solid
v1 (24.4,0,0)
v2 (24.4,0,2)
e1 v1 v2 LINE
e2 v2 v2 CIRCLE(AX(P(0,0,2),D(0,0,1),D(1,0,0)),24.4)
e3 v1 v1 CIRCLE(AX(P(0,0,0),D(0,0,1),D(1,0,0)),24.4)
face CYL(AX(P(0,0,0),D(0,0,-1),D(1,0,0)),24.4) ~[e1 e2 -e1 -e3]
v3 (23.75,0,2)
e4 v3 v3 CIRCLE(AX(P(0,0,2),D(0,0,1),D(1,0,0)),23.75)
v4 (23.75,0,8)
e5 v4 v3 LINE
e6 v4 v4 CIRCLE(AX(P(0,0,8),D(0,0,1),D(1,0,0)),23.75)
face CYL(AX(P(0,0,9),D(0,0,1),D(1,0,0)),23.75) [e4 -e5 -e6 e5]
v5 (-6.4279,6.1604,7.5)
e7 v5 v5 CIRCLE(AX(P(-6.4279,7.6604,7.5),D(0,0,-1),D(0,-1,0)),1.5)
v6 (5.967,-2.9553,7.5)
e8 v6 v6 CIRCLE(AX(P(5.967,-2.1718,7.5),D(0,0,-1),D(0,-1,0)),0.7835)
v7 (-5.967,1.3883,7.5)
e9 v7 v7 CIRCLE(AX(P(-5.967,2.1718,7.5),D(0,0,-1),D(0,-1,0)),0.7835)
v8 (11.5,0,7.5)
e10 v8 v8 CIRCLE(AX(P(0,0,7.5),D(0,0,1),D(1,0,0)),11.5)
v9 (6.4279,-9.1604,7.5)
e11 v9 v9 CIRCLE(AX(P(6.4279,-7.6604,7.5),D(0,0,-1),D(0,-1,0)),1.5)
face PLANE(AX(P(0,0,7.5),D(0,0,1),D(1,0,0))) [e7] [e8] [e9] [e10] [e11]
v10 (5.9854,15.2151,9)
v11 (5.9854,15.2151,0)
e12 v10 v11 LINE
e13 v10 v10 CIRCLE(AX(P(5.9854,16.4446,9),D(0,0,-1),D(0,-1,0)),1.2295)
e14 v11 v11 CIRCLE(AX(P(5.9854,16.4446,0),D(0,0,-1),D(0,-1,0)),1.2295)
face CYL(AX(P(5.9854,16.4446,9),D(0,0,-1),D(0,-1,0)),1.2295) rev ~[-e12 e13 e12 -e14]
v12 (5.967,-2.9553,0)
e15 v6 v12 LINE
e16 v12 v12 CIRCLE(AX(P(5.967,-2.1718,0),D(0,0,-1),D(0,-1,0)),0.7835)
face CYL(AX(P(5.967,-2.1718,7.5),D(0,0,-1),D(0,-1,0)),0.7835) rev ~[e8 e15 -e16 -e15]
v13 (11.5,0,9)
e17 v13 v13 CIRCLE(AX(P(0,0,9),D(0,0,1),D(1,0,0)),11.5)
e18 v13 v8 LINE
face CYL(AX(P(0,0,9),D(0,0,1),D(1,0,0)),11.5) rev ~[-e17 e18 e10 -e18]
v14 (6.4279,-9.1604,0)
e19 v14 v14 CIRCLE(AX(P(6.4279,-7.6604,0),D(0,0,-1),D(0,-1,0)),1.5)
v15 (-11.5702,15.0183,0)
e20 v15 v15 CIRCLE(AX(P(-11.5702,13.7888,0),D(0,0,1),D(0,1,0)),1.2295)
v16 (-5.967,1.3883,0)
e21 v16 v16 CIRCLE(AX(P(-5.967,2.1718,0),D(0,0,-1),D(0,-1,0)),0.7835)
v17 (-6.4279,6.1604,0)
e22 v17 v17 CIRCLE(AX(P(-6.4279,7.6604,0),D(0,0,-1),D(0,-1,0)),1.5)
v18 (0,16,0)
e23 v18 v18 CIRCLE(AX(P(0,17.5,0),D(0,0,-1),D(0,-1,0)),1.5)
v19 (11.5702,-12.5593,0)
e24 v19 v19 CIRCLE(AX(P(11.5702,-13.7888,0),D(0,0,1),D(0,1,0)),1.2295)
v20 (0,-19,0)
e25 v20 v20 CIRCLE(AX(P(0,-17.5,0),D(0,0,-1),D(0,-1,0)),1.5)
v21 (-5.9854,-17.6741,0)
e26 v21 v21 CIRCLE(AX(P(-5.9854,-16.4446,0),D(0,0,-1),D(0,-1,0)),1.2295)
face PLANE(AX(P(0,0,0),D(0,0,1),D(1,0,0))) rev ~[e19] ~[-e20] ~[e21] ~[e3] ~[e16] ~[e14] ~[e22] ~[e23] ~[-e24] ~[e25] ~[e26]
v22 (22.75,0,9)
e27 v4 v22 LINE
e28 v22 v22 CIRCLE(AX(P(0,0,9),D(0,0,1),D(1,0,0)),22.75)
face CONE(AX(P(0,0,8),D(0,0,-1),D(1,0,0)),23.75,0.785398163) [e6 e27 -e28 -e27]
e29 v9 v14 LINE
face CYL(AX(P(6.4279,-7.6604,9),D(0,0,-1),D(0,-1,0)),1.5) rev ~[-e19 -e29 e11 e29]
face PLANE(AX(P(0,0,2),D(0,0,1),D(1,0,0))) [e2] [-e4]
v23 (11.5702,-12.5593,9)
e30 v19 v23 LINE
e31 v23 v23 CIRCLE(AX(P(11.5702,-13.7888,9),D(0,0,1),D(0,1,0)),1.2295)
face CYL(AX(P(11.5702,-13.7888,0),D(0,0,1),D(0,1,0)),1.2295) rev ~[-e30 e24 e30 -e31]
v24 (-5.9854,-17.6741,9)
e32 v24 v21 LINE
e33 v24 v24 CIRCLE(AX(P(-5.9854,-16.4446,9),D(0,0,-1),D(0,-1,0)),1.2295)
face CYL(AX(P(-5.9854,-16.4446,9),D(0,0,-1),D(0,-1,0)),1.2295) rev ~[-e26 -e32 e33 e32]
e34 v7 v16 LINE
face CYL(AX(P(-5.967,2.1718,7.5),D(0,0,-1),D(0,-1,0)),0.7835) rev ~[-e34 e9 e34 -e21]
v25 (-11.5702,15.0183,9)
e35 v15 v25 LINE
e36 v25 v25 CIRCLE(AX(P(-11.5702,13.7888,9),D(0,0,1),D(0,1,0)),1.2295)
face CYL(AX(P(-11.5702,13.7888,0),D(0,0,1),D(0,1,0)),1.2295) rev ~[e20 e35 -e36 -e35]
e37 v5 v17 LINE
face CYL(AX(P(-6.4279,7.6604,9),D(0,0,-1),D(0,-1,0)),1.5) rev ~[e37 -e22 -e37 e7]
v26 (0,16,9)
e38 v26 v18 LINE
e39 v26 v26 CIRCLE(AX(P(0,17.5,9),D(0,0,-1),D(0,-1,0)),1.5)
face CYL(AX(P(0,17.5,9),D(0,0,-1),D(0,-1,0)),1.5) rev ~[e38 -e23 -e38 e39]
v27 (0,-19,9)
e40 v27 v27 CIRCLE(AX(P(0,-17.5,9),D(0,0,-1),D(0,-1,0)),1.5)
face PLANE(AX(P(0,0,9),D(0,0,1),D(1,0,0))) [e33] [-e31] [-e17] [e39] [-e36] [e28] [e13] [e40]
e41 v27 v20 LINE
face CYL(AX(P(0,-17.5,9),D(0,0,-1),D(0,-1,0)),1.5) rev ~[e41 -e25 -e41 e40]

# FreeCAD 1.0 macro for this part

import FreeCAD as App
import Part
import Sketcher

V = App.Vector
Q = App.Units.Quantity


def edges_at(feature, points):
    """Names of the edges that pass closest to the given points."""
    edges = feature.Shape.Edges
    near = lambda p: min(range(len(edges)), key=lambda i: edges[i].distToShape(Part.Vertex(*p))[0])
    return sorted({f"Edge{near(p) + 1}" for p in points})

doc = App.newDocument("Part")
params = doc.addObject("Spreadsheet::Sheet", "Params")
for row, (alias, value) in enumerate([
    ("sketch1_diameter", "48.8 mm"),
    ("pad1_length", "9 mm"),
    ("sketch2_diameter", "23 mm"),
    ("pocket1_length", "1.5 mm"),
    ("sketch3_diameter", "47.5 mm"),
    ("sketch3_diameter2", "48.8 mm"),
    ("pocket2_length", "7 mm"),
    ("sketch4_diameter", "3 mm"),
    ("hole_diameter", "3 mm"),
    ("hole2_diameter", "2.459 mm"),
    ("hole3_diameter", "1.567 mm"),
    ("chamfer_size", "1 mm"),
    ("sketch7_diameter", "3 mm"),
    ("hole4_diameter", "3 mm"),
    ("hole5_diameter", "2.459 mm"),
], start=1):
    params.set(f"A{row}", alias)
    params.set(f"B{row}", "=" + value)
    params.setAlias(f"B{row}", alias)

body = doc.addObject("PartDesign::Body", "Body")

# Sketch on XY plane
sketch1 = body.newObject("Sketcher::SketchObject", "Sketch")
sketch1.AttachmentSupport = (doc.getObject("XY_Plane"), [""])
sketch1.MapMode = "FlatFace"
sketch1.addGeometry(Part.Circle(V(0, 0, 0), V(0, 0, 1), 24.4), False)
sketch1.addConstraint([
    Sketcher.Constraint("Coincident", 0, 3, -1, 1),
    Sketcher.Constraint("Diameter", 0, Q("48.8 mm")),
])
sketch1.setExpression("Constraints[1]", "Params.sketch1_diameter")
pad1 = body.newObject("PartDesign::Pad", "Pad")
pad1.Profile = sketch1
pad1.setExpression("Length", "Params.pad1_length")

# Sketch on XY plane
sketch2 = body.newObject("Sketcher::SketchObject", "Sketch001")
sketch2.AttachmentSupport = (doc.getObject("XY_Plane"), [""])
sketch2.MapMode = "FlatFace"
sketch2.AttachmentOffset = App.Placement(V(0, 0, 9), App.Rotation())
sketch2.addGeometry(Part.Circle(V(0, 0, 0), V(0, 0, 1), 11.5), False)
sketch2.addConstraint([
    Sketcher.Constraint("Coincident", 0, 3, -1, 1),
    Sketcher.Constraint("Diameter", 0, Q("23 mm")),
])
sketch2.setExpression("Constraints[1]", "Params.sketch2_diameter")
pocket1 = body.newObject("PartDesign::Pocket", "Pocket")
pocket1.Profile = sketch2
pocket1.setExpression("Length", "Params.pocket1_length")

# Sketch on XY plane
sketch3 = body.newObject("Sketcher::SketchObject", "Sketch002")
sketch3.AttachmentSupport = (doc.getObject("XY_Plane"), [""])
sketch3.MapMode = "FlatFace"
sketch3.AttachmentOffset = App.Placement(V(0, 0, 9), App.Rotation())
sketch3.addGeometry([
    Part.Circle(V(0, 0, 0), V(0, 0, 1), 24.4),
    Part.Circle(V(0, 0, 0), V(0, 0, 1), 23.75),
], False)
sketch3.addConstraint([
    Sketcher.Constraint("Coincident", 0, 3, -1, 1),
    Sketcher.Constraint("Coincident", 1, 3, -1, 1),
    Sketcher.Constraint("Diameter", 1, Q("47.5 mm")),
    Sketcher.Constraint("Diameter", 0, Q("48.8 mm")),
])
sketch3.setExpression("Constraints[2]", "Params.sketch3_diameter")
sketch3.setExpression("Constraints[3]", "Params.sketch3_diameter2")
pocket2 = body.newObject("PartDesign::Pocket", "Pocket001")
pocket2.Profile = sketch3
pocket2.setExpression("Length", "Params.pocket2_length")

# Sketch on XY plane
sketch4 = body.newObject("Sketcher::SketchObject", "Sketch003")
sketch4.AttachmentSupport = (doc.getObject("XY_Plane"), [""])
sketch4.MapMode = "FlatFace"
sketch4.AttachmentOffset = App.Placement(V(0, 0, 9), App.Rotation())
sketch4.addGeometry([
    Part.Circle(V(0, 17.5, 0), V(0, 0, 1), 1.5),
    Part.Circle(V(0, -17.5, 0), V(0, 0, 1), 1.5),
], False)
sketch4.addConstraint([
    Sketcher.Constraint("Equal", 0, 1),
    Sketcher.Constraint("Symmetric", 0, 3, 1, 3, -1, 1),
    Sketcher.Constraint("PointOnObject", 0, 3, -2),
    Sketcher.Constraint("Diameter", 0, Q("3 mm")),
    Sketcher.Constraint("DistanceY", 1, 3, 0, 3, Q("35 mm")),
])
sketch4.setExpression("Constraints[3]", "Params.sketch4_diameter")
doc.recompute()
hole = body.newObject("PartDesign::Hole", "Hole")
hole.Profile = sketch4
hole.ThreadType = "None"
hole.setExpression("Diameter", "Params.hole_diameter")
hole.DepthType = "ThroughAll"

# Sketch on XY plane
sketch5 = body.newObject("Sketcher::SketchObject", "Sketch004")
sketch5.AttachmentSupport = (doc.getObject("XY_Plane"), [""])
sketch5.MapMode = "FlatFace"
sketch5.AttachmentOffset = App.Placement(V(0, 0, 9), App.Rotation())
sketch5.addGeometry([
    Part.Circle(V(5.9854, 16.4446, 0), V(0, 0, 1), 1.2295),
    Part.Circle(V(-5.9854, -16.4446, 0), V(0, 0, 1), 1.2295),
], False)
sketch5.addConstraint([
    Sketcher.Constraint("Equal", 0, 1),
    Sketcher.Constraint("Symmetric", 0, 3, 1, 3, -1, 1),
    Sketcher.Constraint("Diameter", 0, Q("2.459 mm")),
    Sketcher.Constraint("DistanceX", -1, 1, 0, 3, Q("5.9854 mm")),
    Sketcher.Constraint("DistanceY", -1, 1, 0, 3, Q("16.4446 mm")),
])
doc.recompute()
hole2 = body.newObject("PartDesign::Hole", "Hole001")
hole2.Profile = sketch5
hole2.ThreadType = "None"
hole2.setExpression("Diameter", "Params.hole2_diameter")
hole2.DepthType = "ThroughAll"

# Sketch on XY plane
sketch6 = body.newObject("Sketcher::SketchObject", "Sketch005")
sketch6.AttachmentSupport = (doc.getObject("XY_Plane"), [""])
sketch6.MapMode = "FlatFace"
sketch6.AttachmentOffset = App.Placement(V(0, 0, 7.5), App.Rotation())
sketch6.addGeometry([
    Part.Circle(V(5.967, -2.1718, 0), V(0, 0, 1), 0.7835),
    Part.Circle(V(-5.967, 2.1718, 0), V(0, 0, 1), 0.7835),
], False)
sketch6.addConstraint([
    Sketcher.Constraint("Equal", 0, 1),
    Sketcher.Constraint("Symmetric", 0, 3, 1, 3, -1, 1),
    Sketcher.Constraint("Diameter", 0, Q("1.567 mm")),
    Sketcher.Constraint("DistanceX", -1, 1, 0, 3, Q("5.967 mm")),
    Sketcher.Constraint("DistanceY", 0, 3, -1, 1, Q("2.1718 mm")),
])
doc.recompute()
hole3 = body.newObject("PartDesign::Hole", "Hole002")
hole3.Profile = sketch6
hole3.ThreadType = "None"
hole3.setExpression("Diameter", "Params.hole3_diameter")
hole3.DepthType = "ThroughAll"
doc.recompute()

chamfer = body.newObject("PartDesign::Chamfer", "Chamfer")
chamfer.Base = (hole3, edges_at(hole3, [(-23.75, 0, 9)]))
chamfer.setExpression("Size", "Params.chamfer_size")

# Sketch on XY plane
sketch7 = body.newObject("Sketcher::SketchObject", "Sketch006")
sketch7.AttachmentSupport = (doc.getObject("XY_Plane"), [""])
sketch7.MapMode = "FlatFace"
sketch7.AttachmentOffset = App.Placement(V(0, 0, 9), App.Rotation())
sketch7.addGeometry([
    Part.Circle(V(6.4279, -7.6604, 0), V(0, 0, 1), 1.5),
    Part.Circle(V(-6.4279, 7.6604, 0), V(0, 0, 1), 1.5),
], False)
sketch7.addConstraint([
    Sketcher.Constraint("Equal", 0, 1),
    Sketcher.Constraint("Symmetric", 0, 3, 1, 3, -1, 1),
    Sketcher.Constraint("Diameter", 0, Q("3 mm")),
    Sketcher.Constraint("DistanceX", -1, 1, 0, 3, Q("6.428 mm")),
    Sketcher.Constraint("DistanceY", 0, 3, -1, 1, Q("7.6604 mm")),
])
sketch7.setExpression("Constraints[2]", "Params.sketch7_diameter")
doc.recompute()
hole4 = body.newObject("PartDesign::Hole", "Hole003")
hole4.Profile = sketch7
hole4.ThreadType = "None"
hole4.setExpression("Diameter", "Params.hole4_diameter")
hole4.DepthType = "ThroughAll"

# Sketch on XY plane
sketch8 = body.newObject("Sketcher::SketchObject", "Sketch007")
sketch8.AttachmentSupport = (doc.getObject("XY_Plane"), [""])
sketch8.MapMode = "FlatFace"
sketch8.addGeometry([
    Part.Circle(V(11.5702, -13.7888, 0), V(0, 0, 1), 1.2295),
    Part.Circle(V(-11.5702, 13.7888, 0), V(0, 0, 1), 1.2295),
], False)
sketch8.addConstraint([
    Sketcher.Constraint("Equal", 0, 1),
    Sketcher.Constraint("Symmetric", 0, 3, 1, 3, -1, 1),
    Sketcher.Constraint("Diameter", 0, Q("2.459 mm")),
    Sketcher.Constraint("DistanceX", -1, 1, 0, 3, Q("11.5702 mm")),
    Sketcher.Constraint("DistanceY", 0, 3, -1, 1, Q("13.7888 mm")),
])
doc.recompute()
hole5 = body.newObject("PartDesign::Hole", "Hole004")
hole5.Profile = sketch8
hole5.ThreadType = "None"
hole5.setExpression("Diameter", "Params.hole5_diameter")
hole5.DepthType = "ThroughAll"
hole5.Reversed = True

doc.recompute()
